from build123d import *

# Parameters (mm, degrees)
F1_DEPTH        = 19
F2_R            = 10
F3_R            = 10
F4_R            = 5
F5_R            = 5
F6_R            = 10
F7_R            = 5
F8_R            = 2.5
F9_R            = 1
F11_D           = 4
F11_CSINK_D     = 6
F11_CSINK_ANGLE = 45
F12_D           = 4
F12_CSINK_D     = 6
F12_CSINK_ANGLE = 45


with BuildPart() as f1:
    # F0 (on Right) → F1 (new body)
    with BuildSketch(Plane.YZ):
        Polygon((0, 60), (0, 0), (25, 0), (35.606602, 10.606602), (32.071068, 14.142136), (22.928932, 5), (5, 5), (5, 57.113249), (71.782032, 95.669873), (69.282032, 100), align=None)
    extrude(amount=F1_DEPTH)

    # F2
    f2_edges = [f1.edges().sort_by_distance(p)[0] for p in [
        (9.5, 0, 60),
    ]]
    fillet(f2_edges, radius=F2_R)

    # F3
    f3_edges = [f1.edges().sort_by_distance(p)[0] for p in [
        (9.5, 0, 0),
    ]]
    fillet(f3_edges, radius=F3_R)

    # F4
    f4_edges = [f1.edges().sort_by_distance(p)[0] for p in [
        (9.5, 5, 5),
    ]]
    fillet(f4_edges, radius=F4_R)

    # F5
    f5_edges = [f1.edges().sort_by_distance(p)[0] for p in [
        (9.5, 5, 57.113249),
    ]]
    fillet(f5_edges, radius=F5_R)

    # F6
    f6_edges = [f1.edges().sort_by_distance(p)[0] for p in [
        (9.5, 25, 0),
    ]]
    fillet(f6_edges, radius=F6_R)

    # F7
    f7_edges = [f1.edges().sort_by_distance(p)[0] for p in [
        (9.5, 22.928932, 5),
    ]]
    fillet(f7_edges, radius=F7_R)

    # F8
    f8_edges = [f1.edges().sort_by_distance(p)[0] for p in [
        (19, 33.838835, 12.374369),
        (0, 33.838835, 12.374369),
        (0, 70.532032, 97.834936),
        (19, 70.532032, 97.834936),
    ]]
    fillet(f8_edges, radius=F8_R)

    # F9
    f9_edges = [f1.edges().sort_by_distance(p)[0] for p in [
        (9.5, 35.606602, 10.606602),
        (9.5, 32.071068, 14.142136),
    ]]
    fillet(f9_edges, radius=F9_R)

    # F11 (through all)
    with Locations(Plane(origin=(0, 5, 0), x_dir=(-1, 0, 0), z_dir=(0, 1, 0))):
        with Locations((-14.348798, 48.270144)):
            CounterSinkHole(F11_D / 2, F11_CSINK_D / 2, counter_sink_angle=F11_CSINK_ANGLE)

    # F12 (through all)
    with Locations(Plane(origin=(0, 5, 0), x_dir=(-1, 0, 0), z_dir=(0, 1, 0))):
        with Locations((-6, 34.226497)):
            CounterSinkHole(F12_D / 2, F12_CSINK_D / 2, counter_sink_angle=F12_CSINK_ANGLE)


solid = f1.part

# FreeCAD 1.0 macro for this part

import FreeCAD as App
import Part
import Sketcher
Q = App.Units.Quantity


def edges_at(feature, points):
    """Names of the edges that pass closest to the given points."""
    edges = feature.Shape.Edges
    near = lambda p: min(range(len(edges)), key=lambda i: edges[i].distToShape(Part.Vertex(*p))[0])
    return sorted({f"Edge{near(p) + 1}" for p in points})

doc = App.newDocument("Part")
body = doc.addObject("PartDesign::Body", "Body")

# Sketch on YZ plane
sketch1 = body.newObject("Sketcher::SketchObject", "Sketch")
sketch1.AttachmentSupport = (doc.getObject("YZ_Plane"), [""])
sketch1.MapMode = "FlatFace"
sketch1.addGeometry([
    Part.LineSegment(App.Vector(0, 60, 0), App.Vector(0, 0, 0)),  # 0
    Part.LineSegment(App.Vector(0, 0, 0), App.Vector(25, 0, 0)),  # 1
    Part.LineSegment(App.Vector(25, 0, 0), App.Vector(35.6, 10.6, 0)),  # 2
    Part.LineSegment(App.Vector(35.6, 10.6, 0), App.Vector(32.1, 14.1, 0)),  # 3
    Part.LineSegment(App.Vector(32.1, 14.1, 0), App.Vector(22.9, 5, 0)),  # 4
    Part.LineSegment(App.Vector(22.9, 5, 0), App.Vector(5, 5, 0)),  # 5
    Part.LineSegment(App.Vector(5, 5, 0), App.Vector(5, 57.1, 0)),  # 6
    Part.LineSegment(App.Vector(5, 57.1, 0), App.Vector(71.8, 95.7, 0)),  # 7
    Part.LineSegment(App.Vector(71.8, 95.7, 0), App.Vector(69.3, 100, 0)),  # 8
    Part.LineSegment(App.Vector(69.3, 100, 0), App.Vector(0, 60, 0)),  # 9
], False)
sketch1.addConstraint([
    Sketcher.Constraint("Coincident", 0, 2, 1, 1),
    Sketcher.Constraint("Coincident", 1, 2, 2, 1),
    Sketcher.Constraint("Coincident", 2, 2, 3, 1),
    Sketcher.Constraint("Coincident", 3, 2, 4, 1),
    Sketcher.Constraint("Coincident", 4, 2, 5, 1),
    Sketcher.Constraint("Coincident", 5, 2, 6, 1),
    Sketcher.Constraint("Coincident", 6, 2, 7, 1),
    Sketcher.Constraint("Coincident", 7, 2, 8, 1),
    Sketcher.Constraint("Coincident", 8, 2, 9, 1),
    Sketcher.Constraint("Coincident", 9, 2, 0, 1),
    Sketcher.Constraint("Vertical", 0),
    Sketcher.Constraint("Horizontal", 1),
    Sketcher.Constraint("Horizontal", 5),
    Sketcher.Constraint("Vertical", 6),
    Sketcher.Constraint("Coincident", 0, 2, -1, 1),
    Sketcher.Constraint("Perpendicular", 2, 3),
    Sketcher.Constraint("Perpendicular", 3, 4),
    Sketcher.Constraint("Perpendicular", 7, 8),
    Sketcher.Constraint("Perpendicular", 8, 9),
    Sketcher.Constraint("Equal", 3, 8),
    Sketcher.Constraint("DistanceX", 1, 1, 1, 2, 25.0),
    Sketcher.Constraint("DistanceY", 0, 2, 0, 1, 60.0),
    Sketcher.Constraint("Angle", 2, Q("45 deg")),
    Sketcher.Constraint("Angle", 7, Q("30 deg")),
    Sketcher.Constraint("Distance", 2, 15.0),
    Sketcher.Constraint("Distance", 3, 5.0),
    Sketcher.Constraint("Distance", 9, 80.0),
    Sketcher.Constraint("DistanceY", -1, 1, 4, 2, 5.0),
    Sketcher.Constraint("DistanceX", -1, 1, 5, 2, 5.0),
])
pad1 = body.newObject("PartDesign::Pad", "Pad")
pad1.Profile = sketch1
pad1.Length = 19
doc.recompute()

fillet = body.newObject("PartDesign::Fillet", "Fillet")
fillet.Base = (pad1, edges_at(pad1, [(9.5, 0, 60)]))
fillet.Radius = 10
doc.recompute()

fillet2 = body.newObject("PartDesign::Fillet", "Fillet001")
fillet2.Base = (fillet, edges_at(fillet, [(9.5, 0, 0)]))
fillet2.Radius = 10
doc.recompute()

fillet3 = body.newObject("PartDesign::Fillet", "Fillet002")
fillet3.Base = (fillet2, edges_at(fillet2, [(9.5, 5, 5)]))
fillet3.Radius = 5
doc.recompute()

fillet4 = body.newObject("PartDesign::Fillet", "Fillet003")
fillet4.Base = (fillet3, edges_at(fillet3, [(9.5, 5, 57.113)]))
fillet4.Radius = 5
doc.recompute()

fillet5 = body.newObject("PartDesign::Fillet", "Fillet004")
fillet5.Base = (fillet4, edges_at(fillet4, [(9.5, 25, 0)]))
fillet5.Radius = 10
doc.recompute()

fillet6 = body.newObject("PartDesign::Fillet", "Fillet005")
fillet6.Base = (fillet5, edges_at(fillet5, [(9.5, 22.929, 5)]))
fillet6.Radius = 5
doc.recompute()

fillet7 = body.newObject("PartDesign::Fillet", "Fillet006")
fillet7.Base = (fillet6, edges_at(fillet6, [
    (19, 33.839, 12.374),
    (0, 33.839, 12.374),
    (0, 70.532, 97.835),
    (19, 70.532, 97.835),
]))
fillet7.Radius = 2.5
doc.recompute()

fillet8 = body.newObject("PartDesign::Fillet", "Fillet007")
fillet8.Base = (fillet7, edges_at(fillet7, [(9.5, 35.607, 10.607), (9.5, 32.071, 14.142)]))
fillet8.Radius = 1

# Sketch on XZ plane
sketch2 = body.newObject("Sketcher::SketchObject", "Sketch001")
sketch2.AttachmentSupport = (doc.getObject("XZ_Plane"), [""])
sketch2.MapMode = "FlatFace"
sketch2.AttachmentOffset = App.Placement(App.Vector(0, 0, -5), App.Rotation())
sketch2.addGeometry(Part.Circle(App.Vector(14.3, 48.3, 0), App.Vector(0, 0, 1), 2), False)
sketch2.addConstraint([
    Sketcher.Constraint("Diameter", 0, 4.0),
    Sketcher.Constraint("DistanceX", -1, 1, 0, 3, 14.348798),
    Sketcher.Constraint("DistanceY", -1, 1, 0, 3, 48.270144),
])
doc.recompute()
hole = body.newObject("PartDesign::Hole", "Hole")
hole.Profile = sketch2
hole.ThreadType = "None"
hole.Diameter = 4
hole.DepthType = "ThroughAll"
hole.HoleCutType = "Countersink"
hole.HoleCutDiameter = 6
hole.HoleCutCountersinkAngle = 45
hole.Reversed = True

# Sketch on XZ plane
sketch3 = body.newObject("Sketcher::SketchObject", "Sketch002")
sketch3.AttachmentSupport = (doc.getObject("XZ_Plane"), [""])
sketch3.MapMode = "FlatFace"
sketch3.AttachmentOffset = App.Placement(App.Vector(0, 0, -5), App.Rotation())
sketch3.addGeometry(Part.Circle(App.Vector(6, 34.2, 0), App.Vector(0, 0, 1), 2), False)
sketch3.addConstraint([
    Sketcher.Constraint("Diameter", 0, 4.0),
    Sketcher.Constraint("DistanceX", -1, 1, 0, 3, 6.0),
    Sketcher.Constraint("DistanceY", -1, 1, 0, 3, 34.226497),
])
doc.recompute()
hole2 = body.newObject("PartDesign::Hole", "Hole001")
hole2.Profile = sketch3
hole2.ThreadType = "None"
hole2.Diameter = 4
hole2.DepthType = "ThroughAll"
hole2.HoleCutType = "Countersink"
hole2.HoleCutDiameter = 6
hole2.HoleCutCountersinkAngle = 45
hole2.Reversed = True

doc.recompute()
